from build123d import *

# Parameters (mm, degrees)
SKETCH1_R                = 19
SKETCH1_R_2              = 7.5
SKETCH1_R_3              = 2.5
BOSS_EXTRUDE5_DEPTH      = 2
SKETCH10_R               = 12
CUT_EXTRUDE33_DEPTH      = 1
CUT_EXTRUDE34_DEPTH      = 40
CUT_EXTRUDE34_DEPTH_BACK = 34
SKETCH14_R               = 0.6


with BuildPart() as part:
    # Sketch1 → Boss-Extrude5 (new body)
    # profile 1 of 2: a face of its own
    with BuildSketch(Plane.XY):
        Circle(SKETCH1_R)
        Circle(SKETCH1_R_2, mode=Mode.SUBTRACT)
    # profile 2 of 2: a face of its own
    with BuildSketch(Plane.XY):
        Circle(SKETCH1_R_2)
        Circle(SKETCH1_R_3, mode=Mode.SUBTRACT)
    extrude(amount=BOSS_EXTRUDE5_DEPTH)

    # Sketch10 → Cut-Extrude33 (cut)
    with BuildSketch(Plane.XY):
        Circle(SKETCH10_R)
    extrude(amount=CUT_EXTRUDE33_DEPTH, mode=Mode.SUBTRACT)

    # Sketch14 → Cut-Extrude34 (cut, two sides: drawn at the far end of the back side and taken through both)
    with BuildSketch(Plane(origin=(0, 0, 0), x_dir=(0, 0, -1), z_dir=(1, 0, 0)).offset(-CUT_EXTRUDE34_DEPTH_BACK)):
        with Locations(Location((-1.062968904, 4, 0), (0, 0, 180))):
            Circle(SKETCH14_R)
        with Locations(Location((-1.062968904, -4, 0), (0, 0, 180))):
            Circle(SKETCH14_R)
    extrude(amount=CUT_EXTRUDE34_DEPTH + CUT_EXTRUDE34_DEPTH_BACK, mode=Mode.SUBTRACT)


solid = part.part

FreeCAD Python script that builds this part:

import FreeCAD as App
import Part
import Sketcher

V = App.Vector
Q = App.Units.Quantity

doc = App.newDocument("Part")
body = doc.addObject("PartDesign::Body", "Body")

# Sketch on XY plane
sketch1 = body.newObject("Sketcher::SketchObject", "Sketch")
sketch1.AttachmentSupport = (doc.getObject("XY_Plane"), [""])
sketch1.MapMode = "FlatFace"
sketch1.addGeometry(Part.Circle(V(0, 0, 0), V(0, 0, 1), 19), False)
sketch1.addGeometry(Part.Circle(V(0, 0, 0), V(0, 0, 1), 2.5), False)
sketch1.addConstraint(Sketcher.Constraint("Coincident", 0, 3, -1, 1))
sketch1.addConstraint(Sketcher.Constraint("Coincident", 1, 3, -1, 1))
sketch1.addConstraint(Sketcher.Constraint("Diameter", 0, Q("38 mm")))
sketch1.addConstraint(Sketcher.Constraint("Diameter", 1, Q("5 mm")))
pad1 = body.newObject("PartDesign::Pad", "Pad")
pad1.Profile = sketch1
pad1.Length = 2

# Sketch on XY plane
sketch2 = body.newObject("Sketcher::SketchObject", "Sketch001")
sketch2.AttachmentSupport = (doc.getObject("XY_Plane"), [""])
sketch2.MapMode = "FlatFace"
sketch2.addGeometry(Part.Circle(V(0, 0, 0), V(0, 0, 1), 12), False)
sketch2.addConstraint(Sketcher.Constraint("Coincident", 0, 3, -1, 1))
sketch2.addConstraint(Sketcher.Constraint("Diameter", 0, Q("24 mm")))
pocket1 = body.newObject("PartDesign::Pocket", "Pocket")
pocket1.Profile = sketch2
pocket1.Length = 1
pocket1.Reversed = True

# Sketch on YZ plane
sketch3 = body.newObject("Sketcher::SketchObject", "Sketch002")
sketch3.AttachmentSupport = (doc.getObject("YZ_Plane"), [""])
sketch3.MapMode = "FlatFace"
sketch3.addGeometry(Part.Circle(V(4, 1.1, 0), V(0, 0, 1), 0.6), False)
sketch3.addGeometry(Part.Circle(V(-4, 1.1, 0), V(0, 0, 1), 0.6), False)
sketch3.addConstraint(Sketcher.Constraint("Equal", 0, 1))
sketch3.addConstraint(Sketcher.Constraint("Symmetric", 0, 3, 1, 3, -2))
sketch3.addConstraint(Sketcher.Constraint("Diameter", 0, Q("1.2 mm")))
sketch3.addConstraint(Sketcher.Constraint("DistanceX", -1, 1, 0, 3, Q("4 mm")))
sketch3.addConstraint(Sketcher.Constraint("DistanceY", -1, 1, 0, 3, Q("1.062969 mm")))
pocket2 = body.newObject("PartDesign::Pocket", "Pocket001")
pocket2.Profile = sketch3
pocket2.Type = "ThroughAll"
pocket2.Midplane = True

doc.recompute()
